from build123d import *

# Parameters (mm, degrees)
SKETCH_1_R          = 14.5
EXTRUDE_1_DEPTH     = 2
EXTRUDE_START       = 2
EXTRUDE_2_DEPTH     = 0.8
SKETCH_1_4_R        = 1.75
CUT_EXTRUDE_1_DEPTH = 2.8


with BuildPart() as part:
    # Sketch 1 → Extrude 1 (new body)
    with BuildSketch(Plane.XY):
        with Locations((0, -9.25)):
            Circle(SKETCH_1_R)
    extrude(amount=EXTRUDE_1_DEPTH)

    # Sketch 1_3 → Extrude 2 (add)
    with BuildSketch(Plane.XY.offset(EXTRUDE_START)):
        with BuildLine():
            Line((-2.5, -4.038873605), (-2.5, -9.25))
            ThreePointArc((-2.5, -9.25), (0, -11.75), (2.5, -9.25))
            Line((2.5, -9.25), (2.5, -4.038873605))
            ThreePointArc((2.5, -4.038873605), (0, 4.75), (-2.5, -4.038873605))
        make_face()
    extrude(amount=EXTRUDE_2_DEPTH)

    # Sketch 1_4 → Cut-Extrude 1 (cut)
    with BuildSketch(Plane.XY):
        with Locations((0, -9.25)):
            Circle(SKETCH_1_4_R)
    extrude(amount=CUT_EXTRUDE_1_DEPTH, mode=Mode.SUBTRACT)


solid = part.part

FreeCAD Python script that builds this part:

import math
import FreeCAD as App
import Part
import Sketcher
from FreeCAD import Vector
Q = App.Units.Quantity

doc = App.newDocument("Part")
body = doc.addObject("PartDesign::Body", "Body")

# Sketch on XY plane
sketch1 = body.newObject("Sketcher::SketchObject", "Sketch")
sketch1.AttachmentSupport = (doc.getObject("XY_Plane"), [""])
sketch1.MapMode = "FlatFace"
sketch1.addGeometry(Part.Circle(Vector(0, -9.25, 0), Vector(0, 0, 1), 14.5), False)
sketch1.addConstraint(Sketcher.Constraint("PointOnObject", 0, 3, -2))
sketch1.addConstraint(Sketcher.Constraint("Diameter", 0, Q("29 mm")))
sketch1.addConstraint(Sketcher.Constraint("DistanceY", 0, 3, -1, 1, Q("9.25 mm")))
pad1 = body.newObject("PartDesign::Pad", "Pad")
pad1.Profile = sketch1
pad1.Length = 2

# Sketch on XY plane
sketch2 = body.newObject("Sketcher::SketchObject", "Sketch001")
sketch2.AttachmentSupport = (doc.getObject("XY_Plane"), [""])
sketch2.MapMode = "FlatFace"
sketch2.AttachmentOffset = App.Placement(Vector(0, 0, 2), App.Rotation())
sketch2.addGeometry(Part.LineSegment(Vector(-2.5, -4.038874, 0), Vector(-2.5, -9.25, 0)), False)
sketch2.addGeometry(Part.ArcOfCircle(Part.Circle(Vector(0, -9.25, 0), Vector(0, 0, 1), 2.5), math.radians(180), math.radians(360)), False)
sketch2.addGeometry(Part.LineSegment(Vector(2.5, -9.25, 0), Vector(2.5, -4.038874, 0)), False)
sketch2.addGeometry(Part.ArcOfCircle(Part.Circle(Vector(0, 0, 0), Vector(0, 0, 1), 4.75), math.radians(-58.243136), math.radians(238.243136)), False)
sketch2.addConstraint(Sketcher.Constraint("Tangent", 0, 2, 1, 1))
sketch2.addConstraint(Sketcher.Constraint("Tangent", 1, 2, 2, 1))
sketch2.addConstraint(Sketcher.Constraint("Coincident", 2, 2, 3, 1))
sketch2.addConstraint(Sketcher.Constraint("Coincident", 3, 2, 0, 1))
sketch2.addConstraint(Sketcher.Constraint("Vertical", 0))
sketch2.addConstraint(Sketcher.Constraint("Vertical", 2))
sketch2.addConstraint(Sketcher.Constraint("Coincident", 3, 3, -1, 1))
sketch2.addConstraint(Sketcher.Constraint("PointOnObject", 1, 3, -2))
sketch2.addConstraint(Sketcher.Constraint("Radius", 1, Q("2.5 mm")))
sketch2.addConstraint(Sketcher.Constraint("Radius", 3, Q("4.75 mm")))
sketch2.addConstraint(Sketcher.Constraint("DistanceY", 1, 3, -1, 1, Q("9.25 mm")))
pad2 = body.newObject("PartDesign::Pad", "Pad001")
pad2.Profile = sketch2
pad2.Length = 0.8

# Sketch on XY plane
sketch3 = body.newObject("Sketcher::SketchObject", "Sketch002")
sketch3.AttachmentSupport = (doc.getObject("XY_Plane"), [""])
sketch3.MapMode = "FlatFace"
sketch3.addGeometry(Part.Circle(Vector(0, -9.25, 0), Vector(0, 0, 1), 1.75), False)
sketch3.addConstraint(Sketcher.Constraint("PointOnObject", 0, 3, -2))
sketch3.addConstraint(Sketcher.Constraint("Diameter", 0, Q("3.5 mm")))
sketch3.addConstraint(Sketcher.Constraint("DistanceY", 0, 3, -1, 1, Q("9.25 mm")))
pocket1 = body.newObject("PartDesign::Pocket", "Pocket")
pocket1.Profile = sketch3
pocket1.Length = 2.8
pocket1.Reversed = True

doc.recompute()
